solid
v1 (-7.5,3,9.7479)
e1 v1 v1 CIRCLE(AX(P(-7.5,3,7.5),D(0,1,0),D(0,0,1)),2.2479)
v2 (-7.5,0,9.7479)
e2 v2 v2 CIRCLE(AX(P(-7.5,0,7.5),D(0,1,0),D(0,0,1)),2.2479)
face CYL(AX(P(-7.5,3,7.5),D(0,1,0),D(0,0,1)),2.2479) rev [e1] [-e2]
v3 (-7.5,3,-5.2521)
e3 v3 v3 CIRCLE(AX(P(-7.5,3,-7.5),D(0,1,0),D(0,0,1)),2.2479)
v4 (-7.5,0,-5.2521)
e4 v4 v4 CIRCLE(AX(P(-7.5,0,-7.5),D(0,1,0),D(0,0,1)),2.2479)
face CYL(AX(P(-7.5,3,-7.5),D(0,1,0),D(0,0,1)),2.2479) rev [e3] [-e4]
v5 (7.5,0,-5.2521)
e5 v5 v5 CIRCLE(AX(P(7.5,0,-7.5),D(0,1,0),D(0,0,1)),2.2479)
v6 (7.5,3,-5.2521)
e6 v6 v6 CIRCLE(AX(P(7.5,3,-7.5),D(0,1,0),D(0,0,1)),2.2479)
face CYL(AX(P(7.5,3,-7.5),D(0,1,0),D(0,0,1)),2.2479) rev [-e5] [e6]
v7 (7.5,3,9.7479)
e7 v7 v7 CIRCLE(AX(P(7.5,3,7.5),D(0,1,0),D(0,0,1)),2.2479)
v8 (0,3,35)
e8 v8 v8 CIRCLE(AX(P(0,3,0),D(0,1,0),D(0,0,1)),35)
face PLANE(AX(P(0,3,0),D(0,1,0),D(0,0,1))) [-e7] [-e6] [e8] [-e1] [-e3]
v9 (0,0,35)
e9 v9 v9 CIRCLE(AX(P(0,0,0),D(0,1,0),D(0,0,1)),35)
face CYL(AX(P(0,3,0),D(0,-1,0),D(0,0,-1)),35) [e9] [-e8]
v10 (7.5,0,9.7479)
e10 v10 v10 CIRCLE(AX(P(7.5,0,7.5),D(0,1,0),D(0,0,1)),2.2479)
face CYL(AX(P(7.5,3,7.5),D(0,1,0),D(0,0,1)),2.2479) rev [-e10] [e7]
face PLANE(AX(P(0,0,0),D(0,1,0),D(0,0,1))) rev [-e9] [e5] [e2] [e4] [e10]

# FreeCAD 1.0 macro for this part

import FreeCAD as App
import Part
import Sketcher

doc = App.newDocument("Part")
body = doc.addObject("PartDesign::Body", "Body")

sketch1 = doc.addObject("Sketcher::SketchObject", "Sketch")
body.addObject(sketch1)
sketch1.AttachmentSupport = (doc.XZ_Plane, [""])
sketch1.MapMode = "FlatFace"
sketch1.addGeometry(Part.Circle(App.Vector(0, 0, 0), App.Vector(0, 0, 1), 35), False)
sketch1.addConstraint([
    Sketcher.Constraint("Coincident", 0, 3, -1, 1),
    Sketcher.Constraint("Diameter", 0, 70.0),
])
pad1 = doc.addObject("PartDesign::Pad", "Pad")
body.addObject(pad1)
pad1.Profile = sketch1
pad1.Length = 3
pad1.Reversed = True

sketch2 = doc.addObject("Sketcher::SketchObject", "Sketch001")
body.addObject(sketch2)
sketch2.AttachmentSupport = (doc.XZ_Plane, [""])
sketch2.MapMode = "FlatFace"
sketch2.AttachmentOffset = App.Placement(App.Vector(0, 0, -3), App.Rotation())
sketch2.addGeometry([
    Part.Circle(App.Vector(-7.5, -7.5, 0), App.Vector(0, 0, 1), 2.2),
    Part.Circle(App.Vector(7.5, -7.5, 0), App.Vector(0, 0, 1), 2.2),
    Part.Circle(App.Vector(-7.5, 7.5, 0), App.Vector(0, 0, 1), 2.2),
    Part.Circle(App.Vector(7.5, 7.5, 0), App.Vector(0, 0, 1), 2.2),
], False)
sketch2.addConstraint([
    Sketcher.Constraint("Equal", 0, 1),
    Sketcher.Constraint("Equal", 1, 2),
    Sketcher.Constraint("Equal", 2, 3),
    Sketcher.Constraint("Symmetric", 1, 3, 2, 3, -1, 1),
    Sketcher.Constraint("Symmetric", 0, 3, 3, 3, -1, 1),
    Sketcher.Constraint("Symmetric", 0, 3, 1, 3, -2),
    Sketcher.Constraint("DistanceX", 0, 3, 1, 3, 15.0),
    Sketcher.Constraint("DistanceY", 0, 3, 2, 3, 15.0),
    Sketcher.Constraint("Diameter", 0, 4.4958),
])
doc.recompute()
hole = doc.addObject("PartDesign::Hole", "Hole")
body.addObject(hole)
hole.Profile = sketch2
hole.ThreadType = "None"
hole.Diameter = 4.4958
hole.DepthType = "ThroughAll"
hole.Reversed = True

doc.recompute()
